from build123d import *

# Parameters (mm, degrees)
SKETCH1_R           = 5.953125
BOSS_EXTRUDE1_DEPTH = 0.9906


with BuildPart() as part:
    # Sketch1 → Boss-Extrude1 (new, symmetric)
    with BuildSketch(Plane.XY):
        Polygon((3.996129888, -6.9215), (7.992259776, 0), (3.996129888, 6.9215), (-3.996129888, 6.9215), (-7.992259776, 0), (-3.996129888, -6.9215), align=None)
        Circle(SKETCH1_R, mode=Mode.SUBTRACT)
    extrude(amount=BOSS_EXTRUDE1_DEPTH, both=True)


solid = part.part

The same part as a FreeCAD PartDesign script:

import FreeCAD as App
import Part
import Sketcher
Q = App.Units.Quantity

doc = App.newDocument("Part")
params = doc.addObject("Spreadsheet::Sheet", "Params")
for row, (alias, value) in enumerate([
    ("sketch1_diameter", "0.46875 in"),
    ("pad1_length", "0.078 in"),
], start=1):
    params.set(f"A{row}", alias)
    params.set(f"B{row}", "=" + value)
    params.setAlias(f"B{row}", alias)

body = doc.addObject("PartDesign::Body", "Body")

# Sketch on XY plane
sketch1 = body.newObject("Sketcher::SketchObject", "Sketch")
sketch1.AttachmentSupport = (doc.getObject("XY_Plane"), [""])
sketch1.MapMode = "FlatFace"
sketch1.addGeometry(Part.LineSegment(App.Vector(4, -7, 0), App.Vector(8, 0, 0)), False)
sketch1.addGeometry(Part.LineSegment(App.Vector(8, 0, 0), App.Vector(4, 7, 0)), False)
sketch1.addGeometry(Part.LineSegment(App.Vector(4, 7, 0), App.Vector(-4, 7, 0)), False)
sketch1.addGeometry(Part.LineSegment(App.Vector(-4, 7, 0), App.Vector(-8, 0, 0)), False)
sketch1.addGeometry(Part.LineSegment(App.Vector(-8, 0, 0), App.Vector(-4, -7, 0)), False)
sketch1.addGeometry(Part.LineSegment(App.Vector(-4, -7, 0), App.Vector(4, -7, 0)), False)
sketch1.addGeometry(Part.Circle(App.Vector(0, 0, 0), App.Vector(0, 0, 1), 6), False)
sketch1.addConstraint(Sketcher.Constraint("Coincident", 0, 2, 1, 1))
sketch1.addConstraint(Sketcher.Constraint("Coincident", 1, 2, 2, 1))
sketch1.addConstraint(Sketcher.Constraint("Coincident", 2, 2, 3, 1))
sketch1.addConstraint(Sketcher.Constraint("Coincident", 3, 2, 4, 1))
sketch1.addConstraint(Sketcher.Constraint("Coincident", 4, 2, 5, 1))
sketch1.addConstraint(Sketcher.Constraint("Coincident", 5, 2, 0, 1))
sketch1.addConstraint(Sketcher.Constraint("Horizontal", 2))
sketch1.addConstraint(Sketcher.Constraint("Horizontal", 5))
sketch1.addConstraint(Sketcher.Constraint("Coincident", 6, 3, -1, 1))
sketch1.addConstraint(Sketcher.Constraint("Symmetric", 0, 2, 3, 2, -1, 1))
sketch1.addConstraint(Sketcher.Constraint("Symmetric", 1, 2, 4, 2, -1, 1))
sketch1.addConstraint(Sketcher.Constraint("PointOnObject", 0, 2, -1))
sketch1.addConstraint(Sketcher.Constraint("Parallel", 0, 3))
sketch1.addConstraint(Sketcher.Constraint("Vertical", 2, 2, 4, 2))
sketch1.addConstraint(Sketcher.Constraint("Diameter", 6, Q("0.46875 in")))
sketch1.addConstraint(Sketcher.Constraint("Angle", 0, Q("60 deg")))
sketch1.addConstraint(Sketcher.Constraint("DistanceY", 4, 2, 2, 2, Q("0.545 in")))
sketch1.addConstraint(Sketcher.Constraint("DistanceX", 2, 2, 2, 1, Q("7.99226 mm")))
sketch1.setExpression("Constraints[14]", "Params.sketch1_diameter")
pad1 = body.newObject("PartDesign::Pad", "Pad")
pad1.Profile = sketch1
pad1.setExpression("Length", "Params.pad1_length")
pad1.Midplane = True

doc.recompute()
